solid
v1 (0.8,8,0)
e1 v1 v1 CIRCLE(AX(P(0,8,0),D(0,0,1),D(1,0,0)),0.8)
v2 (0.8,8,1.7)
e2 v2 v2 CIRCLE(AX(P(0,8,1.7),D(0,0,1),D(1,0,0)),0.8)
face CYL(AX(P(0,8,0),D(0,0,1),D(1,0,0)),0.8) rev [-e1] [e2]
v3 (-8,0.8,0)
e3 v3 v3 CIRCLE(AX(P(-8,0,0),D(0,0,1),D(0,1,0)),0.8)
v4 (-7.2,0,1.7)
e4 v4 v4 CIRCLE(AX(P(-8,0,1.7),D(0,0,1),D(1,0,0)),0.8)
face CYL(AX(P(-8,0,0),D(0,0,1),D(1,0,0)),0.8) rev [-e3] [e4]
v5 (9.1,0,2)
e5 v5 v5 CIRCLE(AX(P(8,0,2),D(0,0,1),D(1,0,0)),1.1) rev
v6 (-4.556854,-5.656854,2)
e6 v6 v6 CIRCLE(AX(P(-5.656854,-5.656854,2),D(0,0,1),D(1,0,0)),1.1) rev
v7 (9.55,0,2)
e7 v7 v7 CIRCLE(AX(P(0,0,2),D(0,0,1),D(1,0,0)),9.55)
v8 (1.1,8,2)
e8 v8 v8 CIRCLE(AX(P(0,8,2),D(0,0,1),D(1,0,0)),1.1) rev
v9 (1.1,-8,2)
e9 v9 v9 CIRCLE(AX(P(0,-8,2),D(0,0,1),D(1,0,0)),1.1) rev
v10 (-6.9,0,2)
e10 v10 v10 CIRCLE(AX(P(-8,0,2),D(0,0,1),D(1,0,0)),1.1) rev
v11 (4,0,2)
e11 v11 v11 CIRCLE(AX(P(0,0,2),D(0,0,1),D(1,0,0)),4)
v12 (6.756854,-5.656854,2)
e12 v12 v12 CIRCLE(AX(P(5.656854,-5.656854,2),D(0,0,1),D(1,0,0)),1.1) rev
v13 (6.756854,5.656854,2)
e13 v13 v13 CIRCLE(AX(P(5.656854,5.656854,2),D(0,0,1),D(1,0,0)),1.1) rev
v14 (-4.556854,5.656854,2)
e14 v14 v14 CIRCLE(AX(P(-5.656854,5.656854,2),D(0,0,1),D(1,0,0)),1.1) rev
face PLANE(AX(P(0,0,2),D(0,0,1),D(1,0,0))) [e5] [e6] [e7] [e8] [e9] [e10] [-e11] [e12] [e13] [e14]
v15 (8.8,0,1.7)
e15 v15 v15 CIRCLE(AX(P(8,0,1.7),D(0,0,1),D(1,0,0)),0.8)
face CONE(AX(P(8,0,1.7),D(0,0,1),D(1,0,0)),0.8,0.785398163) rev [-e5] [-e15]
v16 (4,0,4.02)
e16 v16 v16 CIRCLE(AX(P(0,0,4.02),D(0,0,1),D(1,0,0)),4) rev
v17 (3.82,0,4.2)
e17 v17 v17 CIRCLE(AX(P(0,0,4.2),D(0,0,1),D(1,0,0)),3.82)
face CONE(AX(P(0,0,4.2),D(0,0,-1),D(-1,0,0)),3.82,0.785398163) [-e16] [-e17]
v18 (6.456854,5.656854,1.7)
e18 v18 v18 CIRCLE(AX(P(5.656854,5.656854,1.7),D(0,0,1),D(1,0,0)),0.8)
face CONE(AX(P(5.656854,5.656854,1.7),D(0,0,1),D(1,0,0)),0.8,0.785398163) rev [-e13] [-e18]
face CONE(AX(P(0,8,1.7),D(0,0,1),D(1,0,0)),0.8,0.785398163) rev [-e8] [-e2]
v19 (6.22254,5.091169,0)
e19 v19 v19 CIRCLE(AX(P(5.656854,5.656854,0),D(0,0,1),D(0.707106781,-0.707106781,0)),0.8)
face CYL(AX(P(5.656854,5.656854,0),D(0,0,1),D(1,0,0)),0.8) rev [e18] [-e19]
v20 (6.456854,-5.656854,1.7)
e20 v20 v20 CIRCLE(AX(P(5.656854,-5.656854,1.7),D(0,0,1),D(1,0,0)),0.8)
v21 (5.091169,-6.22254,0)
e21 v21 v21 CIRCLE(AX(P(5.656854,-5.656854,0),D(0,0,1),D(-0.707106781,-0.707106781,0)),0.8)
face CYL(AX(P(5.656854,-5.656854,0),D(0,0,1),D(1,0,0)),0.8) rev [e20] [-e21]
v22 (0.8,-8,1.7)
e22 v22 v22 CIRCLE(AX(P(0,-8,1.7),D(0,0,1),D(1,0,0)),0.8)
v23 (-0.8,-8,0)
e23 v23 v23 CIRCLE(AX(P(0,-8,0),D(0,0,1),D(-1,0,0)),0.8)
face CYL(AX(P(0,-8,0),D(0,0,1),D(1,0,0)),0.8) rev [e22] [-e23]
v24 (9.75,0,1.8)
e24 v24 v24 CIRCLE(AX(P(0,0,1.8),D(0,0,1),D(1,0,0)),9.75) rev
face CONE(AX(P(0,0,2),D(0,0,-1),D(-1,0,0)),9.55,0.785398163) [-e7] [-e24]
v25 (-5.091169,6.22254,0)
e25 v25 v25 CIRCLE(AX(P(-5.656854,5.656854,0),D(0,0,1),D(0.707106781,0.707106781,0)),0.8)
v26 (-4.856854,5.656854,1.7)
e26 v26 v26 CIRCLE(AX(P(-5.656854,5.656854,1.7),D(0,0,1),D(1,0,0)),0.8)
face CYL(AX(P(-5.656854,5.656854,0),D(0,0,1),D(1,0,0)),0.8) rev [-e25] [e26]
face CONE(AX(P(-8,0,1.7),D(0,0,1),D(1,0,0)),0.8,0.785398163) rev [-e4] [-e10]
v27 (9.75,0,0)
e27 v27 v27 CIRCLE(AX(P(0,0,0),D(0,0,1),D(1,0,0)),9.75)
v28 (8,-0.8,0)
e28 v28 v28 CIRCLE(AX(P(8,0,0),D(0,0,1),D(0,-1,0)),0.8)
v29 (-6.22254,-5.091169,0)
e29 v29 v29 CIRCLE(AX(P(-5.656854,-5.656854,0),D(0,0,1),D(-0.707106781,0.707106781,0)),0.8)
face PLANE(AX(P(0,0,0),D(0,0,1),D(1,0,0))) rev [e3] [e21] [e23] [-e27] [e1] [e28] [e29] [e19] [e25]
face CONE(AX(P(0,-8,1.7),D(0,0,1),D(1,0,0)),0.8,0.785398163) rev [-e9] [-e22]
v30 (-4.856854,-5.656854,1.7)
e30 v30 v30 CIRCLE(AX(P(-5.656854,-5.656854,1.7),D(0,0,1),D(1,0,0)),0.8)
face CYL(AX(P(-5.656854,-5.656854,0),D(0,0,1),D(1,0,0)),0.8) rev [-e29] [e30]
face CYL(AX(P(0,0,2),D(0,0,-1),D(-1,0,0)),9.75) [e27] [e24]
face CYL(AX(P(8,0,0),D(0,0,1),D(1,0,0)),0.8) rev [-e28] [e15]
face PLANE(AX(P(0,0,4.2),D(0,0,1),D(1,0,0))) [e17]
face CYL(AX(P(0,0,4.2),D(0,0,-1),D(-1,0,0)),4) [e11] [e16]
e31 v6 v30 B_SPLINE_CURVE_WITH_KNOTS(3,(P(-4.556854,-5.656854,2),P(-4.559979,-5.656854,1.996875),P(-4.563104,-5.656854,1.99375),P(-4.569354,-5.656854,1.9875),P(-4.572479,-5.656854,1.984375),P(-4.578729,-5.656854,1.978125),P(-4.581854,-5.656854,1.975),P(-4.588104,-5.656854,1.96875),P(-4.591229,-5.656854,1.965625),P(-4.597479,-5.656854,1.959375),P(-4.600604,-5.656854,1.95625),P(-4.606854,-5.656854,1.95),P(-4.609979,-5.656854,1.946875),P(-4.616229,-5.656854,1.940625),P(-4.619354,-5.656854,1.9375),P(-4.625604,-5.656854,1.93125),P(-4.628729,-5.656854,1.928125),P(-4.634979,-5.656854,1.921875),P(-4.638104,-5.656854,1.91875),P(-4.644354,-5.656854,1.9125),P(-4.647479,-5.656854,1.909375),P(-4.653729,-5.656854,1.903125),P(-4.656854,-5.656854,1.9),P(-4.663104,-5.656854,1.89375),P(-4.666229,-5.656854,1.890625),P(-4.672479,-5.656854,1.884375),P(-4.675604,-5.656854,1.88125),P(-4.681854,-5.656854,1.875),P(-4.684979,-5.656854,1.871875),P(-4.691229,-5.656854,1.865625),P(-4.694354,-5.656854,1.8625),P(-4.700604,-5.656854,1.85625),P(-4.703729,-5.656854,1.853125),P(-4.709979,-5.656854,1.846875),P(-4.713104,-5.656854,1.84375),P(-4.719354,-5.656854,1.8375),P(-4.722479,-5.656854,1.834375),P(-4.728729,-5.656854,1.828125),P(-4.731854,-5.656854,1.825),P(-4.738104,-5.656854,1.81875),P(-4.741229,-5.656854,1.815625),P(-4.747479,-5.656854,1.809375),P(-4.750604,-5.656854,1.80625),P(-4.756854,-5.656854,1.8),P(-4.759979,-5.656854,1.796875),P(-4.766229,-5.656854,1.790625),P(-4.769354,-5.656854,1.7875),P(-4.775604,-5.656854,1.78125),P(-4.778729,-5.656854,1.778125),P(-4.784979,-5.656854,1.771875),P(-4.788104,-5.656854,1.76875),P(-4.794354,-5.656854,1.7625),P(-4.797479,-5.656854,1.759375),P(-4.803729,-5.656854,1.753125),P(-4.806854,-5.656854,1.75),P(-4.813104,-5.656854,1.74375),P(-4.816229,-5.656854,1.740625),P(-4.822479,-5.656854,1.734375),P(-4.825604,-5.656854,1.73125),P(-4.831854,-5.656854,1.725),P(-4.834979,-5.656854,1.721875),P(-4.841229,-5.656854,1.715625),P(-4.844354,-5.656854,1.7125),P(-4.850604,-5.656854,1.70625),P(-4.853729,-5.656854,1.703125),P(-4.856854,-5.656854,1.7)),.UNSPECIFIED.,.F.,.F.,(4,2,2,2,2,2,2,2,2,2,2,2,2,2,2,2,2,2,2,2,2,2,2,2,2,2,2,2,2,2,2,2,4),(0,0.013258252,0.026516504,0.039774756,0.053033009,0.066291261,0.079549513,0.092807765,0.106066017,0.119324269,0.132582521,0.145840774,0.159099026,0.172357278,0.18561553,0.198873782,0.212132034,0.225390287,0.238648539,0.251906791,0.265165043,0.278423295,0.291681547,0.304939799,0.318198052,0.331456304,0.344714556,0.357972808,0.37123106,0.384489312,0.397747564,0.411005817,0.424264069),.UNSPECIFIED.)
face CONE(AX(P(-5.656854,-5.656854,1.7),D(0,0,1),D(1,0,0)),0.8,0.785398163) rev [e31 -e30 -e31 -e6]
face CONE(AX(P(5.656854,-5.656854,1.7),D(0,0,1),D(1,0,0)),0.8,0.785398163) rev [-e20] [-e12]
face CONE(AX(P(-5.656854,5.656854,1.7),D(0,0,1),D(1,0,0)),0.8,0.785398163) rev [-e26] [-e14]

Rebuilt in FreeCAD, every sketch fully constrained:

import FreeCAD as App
import Part
import Sketcher
Q = App.Units.Quantity


def edges_at(feature, points):
    """Names of the edges that pass closest to the given points."""
    edges = feature.Shape.Edges
    near = lambda p: min(range(len(edges)), key=lambda i: edges[i].distToShape(Part.Vertex(*p))[0])
    return sorted({f"Edge{near(p) + 1}" for p in points})

doc = App.newDocument("Part")
params = doc.addObject("Spreadsheet::Sheet", "Params")
for row, (alias, value) in enumerate([
    ("sketch1_diameter", "19.5 mm"),
    ("pad1_length", "2 mm"),
    ("sketch2_diameter", "8 mm"),
    ("pad2_length", "2.2 mm"),
    ("chamfer_size", "0.2 mm"),
    ("chamfer2_size", "0.18 mm"),
    ("sketch3_diameter", "1.6 mm"),
    ("chamfer3_size", "0.3 mm"),
    ("chamfer4_size", "0.3 mm"),
], start=1):
    params.set(f"A{row}", alias)
    params.set(f"B{row}", "=" + value)
    params.setAlias(f"B{row}", alias)

body = doc.addObject("PartDesign::Body", "Body")

sketch1 = doc.addObject("Sketcher::SketchObject", "Sketch")
body.addObject(sketch1)
sketch1.AttachmentSupport = (doc.XY_Plane, [""])
sketch1.MapMode = "FlatFace"
sketch1.addGeometry(Part.Circle(App.Vector(0, 0, 0), App.Vector(0, 0, 1), 10), False)
sketch1.addConstraint(Sketcher.Constraint("Coincident", 0, 3, -1, 1))
sketch1.addConstraint(Sketcher.Constraint("Diameter", 0, Q("19.5 mm")))
sketch1.setExpression("Constraints[1]", "Params.sketch1_diameter")
pad1 = doc.addObject("PartDesign::Pad", "Pad")
body.addObject(pad1)
pad1.Profile = sketch1
pad1.setExpression("Length", "Params.pad1_length")

sketch2 = doc.addObject("Sketcher::SketchObject", "Sketch001")
body.addObject(sketch2)
sketch2.AttachmentSupport = (doc.XY_Plane, [""])
sketch2.MapMode = "FlatFace"
sketch2.AttachmentOffset = App.Placement(App.Vector(0, 0, 2), App.Rotation())
sketch2.addGeometry(Part.Circle(App.Vector(0, 0, 0), App.Vector(0, 0, 1), 4), False)
sketch2.addConstraint(Sketcher.Constraint("Coincident", 0, 3, -1, 1))
sketch2.addConstraint(Sketcher.Constraint("Diameter", 0, Q("8 mm")))
sketch2.setExpression("Constraints[1]", "Params.sketch2_diameter")
pad2 = doc.addObject("PartDesign::Pad", "Pad001")
body.addObject(pad2)
pad2.Profile = sketch2
pad2.setExpression("Length", "Params.pad2_length")
doc.recompute()

chamfer = doc.addObject("PartDesign::Chamfer", "Chamfer")
body.addObject(chamfer)
chamfer.Base = (pad2, edges_at(pad2, [(-9.75, 0, 2)]))
chamfer.setExpression("Size", "Params.chamfer_size")
doc.recompute()

chamfer2 = doc.addObject("PartDesign::Chamfer", "Chamfer001")
body.addObject(chamfer2)
chamfer2.Base = (chamfer, edges_at(chamfer, [(-4, 0, 4.2)]))
chamfer2.setExpression("Size", "Params.chamfer2_size")

sketch3 = doc.addObject("Sketcher::SketchObject", "Sketch002")
body.addObject(sketch3)
sketch3.AttachmentSupport = (doc.XY_Plane, [""])
sketch3.MapMode = "FlatFace"
sketch3.AttachmentOffset = App.Placement(App.Vector(0, 0, 2), App.Rotation())
sketch3.addGeometry(Part.Circle(App.Vector(0, 8, 0), App.Vector(0, 0, 1), 0.8), False)
sketch3.addConstraint(Sketcher.Constraint("PointOnObject", 0, 3, -2))
sketch3.addConstraint(Sketcher.Constraint("Diameter", 0, Q("1.6 mm")))
sketch3.addConstraint(Sketcher.Constraint("DistanceY", -1, 1, 0, 3, Q("8 mm")))
sketch3.setExpression("Constraints[1]", "Params.sketch3_diameter")
pocket1 = doc.addObject("PartDesign::Pocket", "Pocket")
body.addObject(pocket1)
pocket1.Profile = sketch3
pocket1.Type = "ThroughAll"
doc.recompute()

chamfer3 = doc.addObject("PartDesign::Chamfer", "Chamfer002")
body.addObject(chamfer3)
chamfer3.Base = (pocket1, edges_at(pocket1, [(-0.8, 8, 2)]))
chamfer3.setExpression("Size", "Params.chamfer3_size")
doc.recompute()

polarpattern = doc.addObject("PartDesign::PolarPattern", "PolarPattern")
body.addObject(polarpattern)
polarpattern.Originals = [pocket1]
polarpattern.Axis = (doc.Z_Axis, [""])
polarpattern.Angle = 360
polarpattern.Occurrences = 8
body.Tip = polarpattern
doc.recompute()

chamfer4 = doc.addObject("PartDesign::Chamfer", "Chamfer003")
body.addObject(chamfer4)
chamfer4.Base = (polarpattern, edges_at(polarpattern, [
    (-6.223, 5.091, 2),
    (-8, -0.8, 2),
    (-5.091, -6.223, 2),
    (0.8, -8, 2),
    (6.223, -5.091, 2),
    (8, 0.8, 2),
    (5.091, 6.223, 2),
]))
chamfer4.setExpression("Size", "Params.chamfer4_size")

doc.recompute()
